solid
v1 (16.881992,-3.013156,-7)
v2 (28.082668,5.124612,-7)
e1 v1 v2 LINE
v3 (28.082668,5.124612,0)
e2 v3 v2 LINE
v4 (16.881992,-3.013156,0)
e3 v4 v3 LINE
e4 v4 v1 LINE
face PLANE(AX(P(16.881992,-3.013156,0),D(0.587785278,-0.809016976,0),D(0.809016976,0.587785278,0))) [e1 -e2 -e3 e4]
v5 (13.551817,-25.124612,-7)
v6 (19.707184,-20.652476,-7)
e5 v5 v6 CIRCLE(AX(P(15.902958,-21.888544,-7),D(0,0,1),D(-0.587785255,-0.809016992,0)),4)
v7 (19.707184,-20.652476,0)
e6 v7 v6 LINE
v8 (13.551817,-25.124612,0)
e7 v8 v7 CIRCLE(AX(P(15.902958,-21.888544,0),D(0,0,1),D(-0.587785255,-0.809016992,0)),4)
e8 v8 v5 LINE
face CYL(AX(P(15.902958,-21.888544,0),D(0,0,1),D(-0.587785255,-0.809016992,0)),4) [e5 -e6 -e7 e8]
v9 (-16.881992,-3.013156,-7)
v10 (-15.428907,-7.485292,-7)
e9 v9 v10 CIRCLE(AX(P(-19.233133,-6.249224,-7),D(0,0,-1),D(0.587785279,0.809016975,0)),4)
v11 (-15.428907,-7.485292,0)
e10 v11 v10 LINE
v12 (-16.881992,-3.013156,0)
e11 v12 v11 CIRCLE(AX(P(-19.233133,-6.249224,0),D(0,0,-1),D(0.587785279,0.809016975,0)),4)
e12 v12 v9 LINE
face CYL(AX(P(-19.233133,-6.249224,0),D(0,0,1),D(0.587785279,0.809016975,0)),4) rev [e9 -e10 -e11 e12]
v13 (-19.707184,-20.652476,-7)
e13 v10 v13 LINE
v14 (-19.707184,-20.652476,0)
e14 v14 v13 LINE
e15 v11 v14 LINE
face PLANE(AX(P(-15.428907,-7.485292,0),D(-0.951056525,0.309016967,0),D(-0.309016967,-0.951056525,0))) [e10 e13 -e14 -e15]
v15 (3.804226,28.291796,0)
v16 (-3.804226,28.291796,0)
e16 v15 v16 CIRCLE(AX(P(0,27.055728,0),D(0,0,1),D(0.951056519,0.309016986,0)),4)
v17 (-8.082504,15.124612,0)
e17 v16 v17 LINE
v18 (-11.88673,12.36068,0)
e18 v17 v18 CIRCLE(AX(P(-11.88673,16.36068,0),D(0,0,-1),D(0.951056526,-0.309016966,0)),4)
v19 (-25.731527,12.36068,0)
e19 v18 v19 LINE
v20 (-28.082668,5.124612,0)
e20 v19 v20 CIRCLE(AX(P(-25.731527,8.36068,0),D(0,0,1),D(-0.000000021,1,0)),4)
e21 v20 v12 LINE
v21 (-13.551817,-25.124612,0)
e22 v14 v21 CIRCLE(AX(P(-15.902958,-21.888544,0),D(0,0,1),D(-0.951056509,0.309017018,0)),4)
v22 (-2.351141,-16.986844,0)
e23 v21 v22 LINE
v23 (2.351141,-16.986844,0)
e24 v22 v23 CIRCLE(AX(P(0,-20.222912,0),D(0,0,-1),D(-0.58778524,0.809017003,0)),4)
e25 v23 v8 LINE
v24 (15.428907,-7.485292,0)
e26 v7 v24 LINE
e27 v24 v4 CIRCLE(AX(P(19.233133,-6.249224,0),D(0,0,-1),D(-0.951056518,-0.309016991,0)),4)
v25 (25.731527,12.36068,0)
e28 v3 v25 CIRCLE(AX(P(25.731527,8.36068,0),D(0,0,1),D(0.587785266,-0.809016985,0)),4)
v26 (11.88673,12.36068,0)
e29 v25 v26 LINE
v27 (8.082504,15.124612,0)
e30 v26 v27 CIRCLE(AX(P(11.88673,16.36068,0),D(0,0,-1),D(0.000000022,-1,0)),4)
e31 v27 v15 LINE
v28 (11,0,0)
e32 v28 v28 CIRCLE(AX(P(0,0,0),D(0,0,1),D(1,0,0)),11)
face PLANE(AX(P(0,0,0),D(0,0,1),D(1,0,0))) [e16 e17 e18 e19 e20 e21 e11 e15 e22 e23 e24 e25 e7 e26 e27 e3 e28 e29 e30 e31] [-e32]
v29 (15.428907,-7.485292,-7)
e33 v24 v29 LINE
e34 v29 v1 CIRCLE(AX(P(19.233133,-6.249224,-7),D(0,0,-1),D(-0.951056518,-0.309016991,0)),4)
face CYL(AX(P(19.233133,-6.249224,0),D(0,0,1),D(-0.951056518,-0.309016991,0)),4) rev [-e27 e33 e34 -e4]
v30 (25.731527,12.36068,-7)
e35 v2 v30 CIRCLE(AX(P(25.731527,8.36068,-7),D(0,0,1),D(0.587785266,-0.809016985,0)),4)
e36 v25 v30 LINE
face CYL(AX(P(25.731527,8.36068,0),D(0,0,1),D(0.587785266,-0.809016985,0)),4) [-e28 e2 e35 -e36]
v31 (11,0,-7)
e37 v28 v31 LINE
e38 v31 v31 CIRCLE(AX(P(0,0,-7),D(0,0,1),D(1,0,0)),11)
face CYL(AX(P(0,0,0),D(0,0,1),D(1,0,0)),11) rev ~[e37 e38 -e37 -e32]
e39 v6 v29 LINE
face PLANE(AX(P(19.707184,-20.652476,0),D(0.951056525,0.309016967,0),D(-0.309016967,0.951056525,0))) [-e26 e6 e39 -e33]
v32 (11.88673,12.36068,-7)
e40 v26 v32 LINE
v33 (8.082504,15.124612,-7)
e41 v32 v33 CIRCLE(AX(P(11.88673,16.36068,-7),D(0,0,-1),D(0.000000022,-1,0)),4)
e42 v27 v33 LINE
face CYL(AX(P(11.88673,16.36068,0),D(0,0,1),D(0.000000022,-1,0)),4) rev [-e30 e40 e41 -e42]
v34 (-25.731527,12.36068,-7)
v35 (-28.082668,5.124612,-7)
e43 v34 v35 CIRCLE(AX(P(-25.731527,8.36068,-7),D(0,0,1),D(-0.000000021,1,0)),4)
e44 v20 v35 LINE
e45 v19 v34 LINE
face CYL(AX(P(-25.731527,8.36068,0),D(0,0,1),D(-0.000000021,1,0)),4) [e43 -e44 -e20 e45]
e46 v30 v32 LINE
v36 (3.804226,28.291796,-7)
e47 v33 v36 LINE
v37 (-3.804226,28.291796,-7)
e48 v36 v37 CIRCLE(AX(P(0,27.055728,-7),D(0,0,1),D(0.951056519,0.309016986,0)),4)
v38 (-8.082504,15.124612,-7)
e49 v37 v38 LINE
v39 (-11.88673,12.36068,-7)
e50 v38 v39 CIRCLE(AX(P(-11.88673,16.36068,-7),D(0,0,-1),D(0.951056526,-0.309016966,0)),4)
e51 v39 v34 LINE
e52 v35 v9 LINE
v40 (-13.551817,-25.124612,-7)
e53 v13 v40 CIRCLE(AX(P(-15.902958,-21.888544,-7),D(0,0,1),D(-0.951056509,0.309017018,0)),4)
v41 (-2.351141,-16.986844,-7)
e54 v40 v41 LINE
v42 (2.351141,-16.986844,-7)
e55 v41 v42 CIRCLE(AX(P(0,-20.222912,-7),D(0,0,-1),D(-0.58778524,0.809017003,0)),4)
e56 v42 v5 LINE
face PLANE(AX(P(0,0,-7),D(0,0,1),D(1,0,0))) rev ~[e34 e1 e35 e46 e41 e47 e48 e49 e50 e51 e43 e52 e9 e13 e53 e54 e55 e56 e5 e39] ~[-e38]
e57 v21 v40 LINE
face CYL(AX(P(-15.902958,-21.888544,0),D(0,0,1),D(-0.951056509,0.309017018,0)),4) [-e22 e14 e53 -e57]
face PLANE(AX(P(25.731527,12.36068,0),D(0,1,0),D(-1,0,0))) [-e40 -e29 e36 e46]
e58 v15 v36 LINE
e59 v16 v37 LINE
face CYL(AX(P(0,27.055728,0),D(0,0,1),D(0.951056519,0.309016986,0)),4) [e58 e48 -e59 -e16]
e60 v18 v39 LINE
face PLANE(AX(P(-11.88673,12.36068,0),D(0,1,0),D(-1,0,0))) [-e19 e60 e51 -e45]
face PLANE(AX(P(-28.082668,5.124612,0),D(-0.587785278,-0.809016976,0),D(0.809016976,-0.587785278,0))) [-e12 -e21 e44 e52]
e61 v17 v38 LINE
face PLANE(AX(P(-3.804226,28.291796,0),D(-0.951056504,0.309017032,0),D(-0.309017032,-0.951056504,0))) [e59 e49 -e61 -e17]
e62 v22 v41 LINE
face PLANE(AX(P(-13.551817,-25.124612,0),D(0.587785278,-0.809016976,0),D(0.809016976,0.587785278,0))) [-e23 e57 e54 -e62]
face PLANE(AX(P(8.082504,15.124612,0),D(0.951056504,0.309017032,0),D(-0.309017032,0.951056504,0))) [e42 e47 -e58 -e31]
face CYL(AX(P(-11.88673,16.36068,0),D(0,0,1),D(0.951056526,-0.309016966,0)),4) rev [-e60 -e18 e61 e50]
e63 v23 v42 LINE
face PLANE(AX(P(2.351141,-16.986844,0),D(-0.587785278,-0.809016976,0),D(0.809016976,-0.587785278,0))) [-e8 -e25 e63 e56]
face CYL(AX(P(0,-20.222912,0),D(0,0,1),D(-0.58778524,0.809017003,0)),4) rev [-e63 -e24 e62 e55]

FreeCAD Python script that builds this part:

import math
import FreeCAD as App
import Part
import Sketcher
Q = App.Units.Quantity

doc = App.newDocument("Part")
body = doc.addObject("PartDesign::Body", "Body")

sketch1 = body.newObject("Sketcher::SketchObject", "Sketch")
sketch1.AttachmentSupport = (doc.getObject("XY_Plane"), [""])
sketch1.MapMode = "FlatFace"
sketch1.addGeometry([
    Part.ArcOfCircle(Part.Circle(App.Vector(0, 27.055728, 0), App.Vector(0, 0, 1), 4), math.radians(18), math.radians(162)),
    Part.LineSegment(App.Vector(-3.804226, 28.291796, 0), App.Vector(-8.082504, 15.124612, 0)),
    Part.ArcOfCircle(Part.Circle(App.Vector(-11.88673, 16.36068, 0), App.Vector(0, 0, 1), 4), math.radians(-90.000001), math.radians(-17.999998)),
    Part.LineSegment(App.Vector(-11.88673, 12.36068, 0), App.Vector(-25.731527, 12.36068, 0)),
    Part.ArcOfCircle(Part.Circle(App.Vector(-25.731527, 8.36068, 0), App.Vector(0, 0, 1), 4), math.radians(90.000001), math.radians(233.999999)),
    Part.LineSegment(App.Vector(-28.082668, 5.124612, 0), App.Vector(-16.881992, -3.013156, 0)),
    Part.ArcOfCircle(Part.Circle(App.Vector(-19.233133, -6.249224, 0), App.Vector(0, 0, 1), 4), math.radians(-18), math.radians(53.999998)),
    Part.LineSegment(App.Vector(-15.428907, -7.485292, 0), App.Vector(-19.707184, -20.652476, 0)),
    Part.ArcOfCircle(Part.Circle(App.Vector(-15.902958, -21.888544, 0), App.Vector(0, 0, 1), 4), math.radians(161.999999), math.radians(306)),
    Part.LineSegment(App.Vector(-13.551817, -25.124612, 0), App.Vector(-2.351141, -16.986844, 0)),
    Part.ArcOfCircle(Part.Circle(App.Vector(0, -20.222912, 0), App.Vector(0, 0, 1), 4), math.radians(54.000001), math.radians(125.999999)),
    Part.LineSegment(App.Vector(2.351141, -16.986844, 0), App.Vector(13.551817, -25.124612, 0)),
    Part.ArcOfCircle(Part.Circle(App.Vector(15.902958, -21.888544, 0), App.Vector(0, 0, 1), 4), math.radians(-126), math.radians(18.000001)),
    Part.LineSegment(App.Vector(19.707184, -20.652476, 0), App.Vector(15.428907, -7.485292, 0)),
    Part.ArcOfCircle(Part.Circle(App.Vector(19.233133, -6.249224, 0), App.Vector(0, 0, 1), 4), math.radians(126.000002), math.radians(198)),
    Part.LineSegment(App.Vector(16.881992, -3.013156, 0), App.Vector(28.082668, 5.124612, 0)),
    Part.ArcOfCircle(Part.Circle(App.Vector(25.731527, 8.36068, 0), App.Vector(0, 0, 1), 4), math.radians(-53.999999), math.radians(89.999999)),
    Part.LineSegment(App.Vector(25.731527, 12.36068, 0), App.Vector(11.88673, 12.36068, 0)),
    Part.ArcOfCircle(Part.Circle(App.Vector(11.88673, 16.36068, 0), App.Vector(0, 0, 1), 4), math.radians(-162.000002), math.radians(-89.999999)),
    Part.LineSegment(App.Vector(8.082504, 15.124612, 0), App.Vector(3.804226, 28.291796, 0)),
    Part.Circle(App.Vector(0, 0, 0), App.Vector(0, 0, 1), 11),
], False)
sketch1.addConstraint([
    Sketcher.Constraint("Tangent", 0, 2, 1, 1),
    Sketcher.Constraint("Tangent", 1, 2, 2, 2),
    Sketcher.Constraint("Tangent", 2, 1, 3, 1),
    Sketcher.Constraint("Tangent", 3, 2, 4, 1),
    Sketcher.Constraint("Tangent", 4, 2, 5, 1),
    Sketcher.Constraint("Tangent", 5, 2, 6, 2),
    Sketcher.Constraint("Tangent", 6, 1, 7, 1),
    Sketcher.Constraint("Tangent", 7, 2, 8, 1),
    Sketcher.Constraint("Tangent", 8, 2, 9, 1),
    Sketcher.Constraint("Tangent", 9, 2, 10, 2),
    Sketcher.Constraint("Tangent", 10, 1, 11, 1),
    Sketcher.Constraint("Tangent", 11, 2, 12, 1),
    Sketcher.Constraint("Tangent", 12, 2, 13, 1),
    Sketcher.Constraint("Tangent", 13, 2, 14, 2),
    Sketcher.Constraint("Tangent", 14, 1, 15, 1),
    Sketcher.Constraint("Tangent", 15, 2, 16, 1),
    Sketcher.Constraint("Tangent", 16, 2, 17, 1),
    Sketcher.Constraint("Tangent", 17, 2, 18, 2),
    Sketcher.Constraint("Tangent", 18, 1, 19, 1),
    Sketcher.Constraint("Tangent", 19, 2, 0, 1),
    Sketcher.Constraint("Horizontal", 3),
    Sketcher.Constraint("Horizontal", 17),
    Sketcher.Constraint("Coincident", 20, 3, -1, 1),
    Sketcher.Constraint("Equal", 0, 2),
    Sketcher.Constraint("Equal", 2, 4),
    Sketcher.Constraint("Equal", 4, 6),
    Sketcher.Constraint("Equal", 6, 8),
    Sketcher.Constraint("Equal", 8, 10),
    Sketcher.Constraint("Equal", 10, 12),
    Sketcher.Constraint("Equal", 12, 14),
    Sketcher.Constraint("Equal", 14, 16),
    Sketcher.Constraint("Equal", 16, 18),
    Sketcher.Constraint("Symmetric", 8, 3, 12, 3, -2),
    Sketcher.Constraint("Symmetric", 6, 3, 14, 3, -2),
    Sketcher.Constraint("Symmetric", 4, 3, 16, 3, -2),
    Sketcher.Constraint("Symmetric", 1, 2, 18, 1, -2),
    Sketcher.Constraint("PointOnObject", 10, 3, -2),
    Sketcher.Constraint("Parallel", 1, 7),
    Sketcher.Constraint("Parallel", 5, 11),
    Sketcher.Constraint("Equal", 1, 5),
    Sketcher.Constraint("Equal", 5, 7),
    Sketcher.Constraint("Equal", 7, 9),
    Sketcher.Constraint("Diameter", 20, 22.0),
    Sketcher.Constraint("Radius", 0, 4.0),
    Sketcher.Constraint("Angle", 1, Q("-108.000002 deg")),
    Sketcher.Constraint("Angle", 5, Q("-36.000002 deg")),
    Sketcher.Constraint("DistanceX", 4, 3, 0, 2, 21.927301),
    Sketcher.Constraint("DistanceY", -1, 1, 0, 3, 27.055728),
])
pad1 = body.newObject("PartDesign::Pad", "Pad")
pad1.Profile = sketch1
pad1.Length = 7
pad1.Reversed = True

doc.recompute()
